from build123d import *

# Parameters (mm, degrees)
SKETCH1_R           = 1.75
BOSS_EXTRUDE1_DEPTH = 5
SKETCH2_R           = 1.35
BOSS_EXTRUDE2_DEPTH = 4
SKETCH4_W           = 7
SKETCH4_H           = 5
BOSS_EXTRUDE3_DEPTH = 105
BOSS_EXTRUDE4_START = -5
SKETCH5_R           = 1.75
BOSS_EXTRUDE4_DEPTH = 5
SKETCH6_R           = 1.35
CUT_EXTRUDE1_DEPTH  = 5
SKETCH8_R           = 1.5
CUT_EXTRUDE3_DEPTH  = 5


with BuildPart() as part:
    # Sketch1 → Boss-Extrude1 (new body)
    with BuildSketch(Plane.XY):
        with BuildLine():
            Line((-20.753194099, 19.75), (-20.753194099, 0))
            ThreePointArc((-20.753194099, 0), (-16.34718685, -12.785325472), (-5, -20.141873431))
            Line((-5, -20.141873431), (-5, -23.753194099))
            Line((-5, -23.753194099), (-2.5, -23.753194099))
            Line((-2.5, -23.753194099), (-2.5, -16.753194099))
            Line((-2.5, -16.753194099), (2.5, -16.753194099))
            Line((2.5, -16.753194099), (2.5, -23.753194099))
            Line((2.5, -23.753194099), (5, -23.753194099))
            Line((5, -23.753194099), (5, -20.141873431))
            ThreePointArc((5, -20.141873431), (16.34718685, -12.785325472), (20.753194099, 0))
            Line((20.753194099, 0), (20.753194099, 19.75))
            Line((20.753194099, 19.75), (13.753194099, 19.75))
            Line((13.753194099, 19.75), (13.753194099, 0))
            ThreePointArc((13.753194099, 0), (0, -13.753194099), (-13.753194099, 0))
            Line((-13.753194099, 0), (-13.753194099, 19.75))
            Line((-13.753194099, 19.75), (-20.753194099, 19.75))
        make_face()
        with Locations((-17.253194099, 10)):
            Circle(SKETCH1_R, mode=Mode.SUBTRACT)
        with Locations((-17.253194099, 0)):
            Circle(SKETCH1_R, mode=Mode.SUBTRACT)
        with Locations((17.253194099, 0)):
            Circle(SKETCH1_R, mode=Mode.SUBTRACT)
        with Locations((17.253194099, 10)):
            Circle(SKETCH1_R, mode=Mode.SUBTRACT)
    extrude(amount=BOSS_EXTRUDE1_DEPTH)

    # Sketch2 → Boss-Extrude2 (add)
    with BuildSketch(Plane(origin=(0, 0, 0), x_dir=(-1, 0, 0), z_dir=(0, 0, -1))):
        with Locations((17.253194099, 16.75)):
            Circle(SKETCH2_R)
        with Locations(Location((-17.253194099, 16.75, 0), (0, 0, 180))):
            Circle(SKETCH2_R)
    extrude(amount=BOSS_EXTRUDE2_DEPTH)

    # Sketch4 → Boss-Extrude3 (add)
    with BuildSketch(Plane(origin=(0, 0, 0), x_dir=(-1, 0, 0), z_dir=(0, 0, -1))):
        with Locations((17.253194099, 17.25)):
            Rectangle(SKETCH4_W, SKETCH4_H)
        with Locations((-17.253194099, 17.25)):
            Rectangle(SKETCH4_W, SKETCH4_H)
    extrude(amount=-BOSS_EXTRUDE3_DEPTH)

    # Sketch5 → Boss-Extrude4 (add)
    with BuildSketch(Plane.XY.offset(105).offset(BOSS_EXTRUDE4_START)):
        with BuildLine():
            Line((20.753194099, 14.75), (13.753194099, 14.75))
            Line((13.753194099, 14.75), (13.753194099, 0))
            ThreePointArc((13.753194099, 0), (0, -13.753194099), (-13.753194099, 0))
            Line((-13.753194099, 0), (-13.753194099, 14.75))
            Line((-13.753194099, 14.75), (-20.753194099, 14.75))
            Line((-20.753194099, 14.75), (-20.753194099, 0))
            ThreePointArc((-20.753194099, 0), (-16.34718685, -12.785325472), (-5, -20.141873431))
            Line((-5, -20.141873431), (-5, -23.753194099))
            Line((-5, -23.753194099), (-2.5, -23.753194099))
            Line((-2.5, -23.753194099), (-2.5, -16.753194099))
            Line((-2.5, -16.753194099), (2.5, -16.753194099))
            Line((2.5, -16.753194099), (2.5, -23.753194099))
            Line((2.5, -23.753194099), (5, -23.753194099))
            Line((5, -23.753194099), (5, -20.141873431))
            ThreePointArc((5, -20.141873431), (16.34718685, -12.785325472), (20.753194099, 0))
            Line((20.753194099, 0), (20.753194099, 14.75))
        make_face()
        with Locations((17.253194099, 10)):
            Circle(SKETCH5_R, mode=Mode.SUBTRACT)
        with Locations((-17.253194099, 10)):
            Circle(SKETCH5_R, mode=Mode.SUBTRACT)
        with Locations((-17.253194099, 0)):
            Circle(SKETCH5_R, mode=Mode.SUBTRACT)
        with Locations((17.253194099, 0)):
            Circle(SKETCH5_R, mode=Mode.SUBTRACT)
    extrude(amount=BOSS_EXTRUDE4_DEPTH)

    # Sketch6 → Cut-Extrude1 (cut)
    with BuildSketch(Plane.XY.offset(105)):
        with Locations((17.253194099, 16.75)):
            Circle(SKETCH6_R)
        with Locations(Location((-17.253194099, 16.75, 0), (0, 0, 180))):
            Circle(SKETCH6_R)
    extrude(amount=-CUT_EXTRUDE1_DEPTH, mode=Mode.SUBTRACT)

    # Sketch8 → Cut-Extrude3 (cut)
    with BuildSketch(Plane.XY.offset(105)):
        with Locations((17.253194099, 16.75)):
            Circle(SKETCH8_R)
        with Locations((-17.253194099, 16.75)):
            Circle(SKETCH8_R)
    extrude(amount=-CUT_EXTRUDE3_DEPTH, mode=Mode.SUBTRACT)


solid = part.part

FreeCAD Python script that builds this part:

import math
import FreeCAD as App
import Part
import Sketcher
from FreeCAD import Vector
Q = App.Units.Quantity

doc = App.newDocument("Part")
params = doc.addObject("Spreadsheet::Sheet", "Params")
for row, (alias, value) in enumerate([
    ("sketch1_diameter", "3.5 mm"),
    ("sketch1_width", "5 mm"),
    ("sketch1_width2", "7 mm"),
    ("sketch1_width3", "2.5 mm"),
    ("sketch1_height", "19.75 mm"),
    ("pad1_length", "5 mm"),
    ("sketch2_diameter", "2.7 mm"),
    ("pad2_length", "4 mm"),
    ("sketch3_width", "7 mm"),
    ("sketch3_height", "5 mm"),
    ("pad3_length", "105 mm"),
    ("sketch4_diameter", "3.5 mm"),
    ("sketch4_width", "7 mm"),
    ("sketch4_width2", "5 mm"),
    ("sketch4_width3", "2.5 mm"),
    ("sketch4_height", "14.75 mm"),
    ("pad4_length", "5 mm"),
    ("sketch5_diameter", "2.7 mm"),
    ("pocket1_length", "5 mm"),
    ("sketch6_diameter", "3 mm"),
    ("pocket2_length", "5 mm"),
], start=1):
    params.set(f"A{row}", alias)
    params.set(f"B{row}", "=" + value)
    params.setAlias(f"B{row}", alias)

body = doc.addObject("PartDesign::Body", "Body")

# Sketch on XY plane
sketch1 = doc.addObject("Sketcher::SketchObject", "Sketch")
body.addObject(sketch1)
sketch1.AttachmentSupport = (doc.XY_Plane, [""])
sketch1.MapMode = "FlatFace"
sketch1.addGeometry([
    Part.LineSegment(Vector(-20.753194, 19.75, 0), Vector(-20.753194, 0, 0)),  # 0
    Part.ArcOfCircle(Part.Circle(Vector(0, 0, 0), Vector(0, 0, 1), 20.753194), math.radians(180), math.radians(256.058755)),  # 1
    Part.LineSegment(Vector(-5, -20.141873, 0), Vector(-5, -23.753194, 0)),  # 2
    Part.LineSegment(Vector(-5, -23.753194, 0), Vector(-2.5, -23.753194, 0)),  # 3
    Part.LineSegment(Vector(-2.5, -23.753194, 0), Vector(-2.5, -16.753194, 0)),  # 4
    Part.LineSegment(Vector(-2.5, -16.753194, 0), Vector(2.5, -16.753194, 0)),  # 5
    Part.LineSegment(Vector(2.5, -16.753194, 0), Vector(2.5, -23.753194, 0)),  # 6
    Part.LineSegment(Vector(2.5, -23.753194, 0), Vector(5, -23.753194, 0)),  # 7
    Part.LineSegment(Vector(5, -23.753194, 0), Vector(5, -20.141873, 0)),  # 8
    Part.ArcOfCircle(Part.Circle(Vector(0, 0, 0), Vector(0, 0, 1), 20.753194), math.radians(-76.058755), math.radians(0)),  # 9
    Part.LineSegment(Vector(20.753194, 0, 0), Vector(20.753194, 19.75, 0)),  # 10
    Part.LineSegment(Vector(20.753194, 19.75, 0), Vector(13.753194, 19.75, 0)),  # 11
    Part.LineSegment(Vector(13.753194, 19.75, 0), Vector(13.753194, 0, 0)),  # 12
    Part.ArcOfCircle(Part.Circle(Vector(0, 0, 0), Vector(0, 0, 1), 13.753194), math.radians(180), math.radians(360)),  # 13
    Part.LineSegment(Vector(-13.753194, 0, 0), Vector(-13.753194, 19.75, 0)),  # 14
    Part.LineSegment(Vector(-13.753194, 19.75, 0), Vector(-20.753194, 19.75, 0)),  # 15
    Part.Circle(Vector(-17.253194, 0, 0), Vector(0, 0, 1), 1.75),  # 16
    Part.Circle(Vector(17.253194, 0, 0), Vector(0, 0, 1), 1.75),  # 17
    Part.Circle(Vector(-17.253194, 10, 0), Vector(0, 0, 1), 1.75),  # 18
    Part.Circle(Vector(17.253194, 10, 0), Vector(0, 0, 1), 1.75),  # 19
], False)
sketch1.addConstraint([
    Sketcher.Constraint("Tangent", 0, 2, 1, 1),
    Sketcher.Constraint("Coincident", 1, 2, 2, 1),
    Sketcher.Constraint("Coincident", 2, 2, 3, 1),
    Sketcher.Constraint("Coincident", 3, 2, 4, 1),
    Sketcher.Constraint("Coincident", 4, 2, 5, 1),
    Sketcher.Constraint("Coincident", 5, 2, 6, 1),
    Sketcher.Constraint("Coincident", 6, 2, 7, 1),
    Sketcher.Constraint("Coincident", 7, 2, 8, 1),
    Sketcher.Constraint("Coincident", 8, 2, 9, 1),
    Sketcher.Constraint("Tangent", 9, 2, 10, 1),
    Sketcher.Constraint("Coincident", 10, 2, 11, 1),
    Sketcher.Constraint("Coincident", 11, 2, 12, 1),
    Sketcher.Constraint("Tangent", 12, 2, 13, 2),
    Sketcher.Constraint("Tangent", 13, 1, 14, 1),
    Sketcher.Constraint("Coincident", 14, 2, 15, 1),
    Sketcher.Constraint("Coincident", 15, 2, 0, 1),
    Sketcher.Constraint("Vertical", 0),
    Sketcher.Constraint("Vertical", 2),
    Sketcher.Constraint("Horizontal", 3),
    Sketcher.Constraint("Vertical", 4),
    Sketcher.Constraint("Horizontal", 5),
    Sketcher.Constraint("Vertical", 6),
    Sketcher.Constraint("Horizontal", 7),
    Sketcher.Constraint("Vertical", 8),
    Sketcher.Constraint("Vertical", 10),
    Sketcher.Constraint("Horizontal", 11),
    Sketcher.Constraint("Vertical", 12),
    Sketcher.Constraint("Vertical", 14),
    Sketcher.Constraint("Horizontal", 15),
    Sketcher.Constraint("Coincident", 1, 3, -1, 1),
    Sketcher.Constraint("Coincident", 9, 3, -1, 1),
    Sketcher.Constraint("Coincident", 13, 3, -1, 1),
    Sketcher.Constraint("Equal", 1, 9),
    Sketcher.Constraint("Equal", 16, 17),
    Sketcher.Constraint("Equal", 17, 18),
    Sketcher.Constraint("Equal", 18, 19),
    Sketcher.Constraint("Symmetric", 16, 3, 17, 3, -1, 1),
    Sketcher.Constraint("Symmetric", 18, 3, 19, 3, -2),
    Sketcher.Constraint("Symmetric", 3, 2, 6, 2, -2),
    Sketcher.Constraint("PointOnObject", 16, 3, -1),
    Sketcher.Constraint("Horizontal", 1, 2, 8, 2),
    Sketcher.Constraint("Horizontal", 11, 2, 14, 2),
    Sketcher.Constraint("Vertical", 16, 3, 18, 3),
    Sketcher.Constraint("Equal", 15, 4),
    Sketcher.Constraint("Diameter", 16, Q("3.5 mm")),
    Sketcher.Constraint("DistanceX", 5, 1, 5, 2, Q("5 mm")),
    Sketcher.Constraint("DistanceX", 11, 2, 11, 1, Q("7 mm")),
    Sketcher.Constraint("DistanceX", 3, 1, 3, 2, Q("2.5 mm")),
    Sketcher.Constraint("DistanceY", -1, 1, 18, 3, Q("10 mm")),
    Sketcher.Constraint("DistanceY", 0, 2, 0, 1, Q("19.75 mm")),
    Sketcher.Constraint("DistanceX", 0, 2, 16, 3, Q("3.5 mm")),
    Sketcher.Constraint("Radius", 1, Q("20.753194 mm")),
    Sketcher.Constraint("DistanceY", 2, 2, 2, 1, Q("3.611321 mm")),
])
sketch1.setExpression("Constraints[44]", "Params.sketch1_diameter")
sketch1.setExpression("Constraints[45]", "Params.sketch1_width")
sketch1.setExpression("Constraints[46]", "Params.sketch1_width2")
sketch1.setExpression("Constraints[47]", "Params.sketch1_width3")
sketch1.setExpression("Constraints[49]", "Params.sketch1_height")
pad1 = doc.addObject("PartDesign::Pad", "Pad")
body.addObject(pad1)
pad1.Profile = sketch1
pad1.setExpression("Length", "Params.pad1_length")

# Sketch on XY plane
sketch2 = doc.addObject("Sketcher::SketchObject", "Sketch001")
body.addObject(sketch2)
sketch2.AttachmentSupport = (doc.XY_Plane, [""])
sketch2.MapMode = "FlatFace"
sketch2.addGeometry([
    Part.Circle(Vector(-17.253194, 16.75, 0), Vector(0, 0, 1), 1.35),
    Part.Circle(Vector(17.253194, 16.75, 0), Vector(0, 0, 1), 1.35),
], False)
sketch2.addConstraint([
    Sketcher.Constraint("Equal", 0, 1),
    Sketcher.Constraint("Symmetric", 0, 3, 1, 3, -2),
    Sketcher.Constraint("Diameter", 0, Q("2.7 mm")),
    Sketcher.Constraint("DistanceY", -1, 1, 0, 3, Q("16.75 mm")),
    Sketcher.Constraint("DistanceX", 0, 3, 1, 3, Q("34.506388 mm")),
])
sketch2.setExpression("Constraints[2]", "Params.sketch2_diameter")
pad2 = doc.addObject("PartDesign::Pad", "Pad001")
body.addObject(pad2)
pad2.Profile = sketch2
pad2.setExpression("Length", "Params.pad2_length")
pad2.Reversed = True

# Sketch on XY plane
sketch3 = doc.addObject("Sketcher::SketchObject", "Sketch002")
body.addObject(sketch3)
sketch3.AttachmentSupport = (doc.XY_Plane, [""])
sketch3.MapMode = "FlatFace"
sketch3.addGeometry([
    Part.LineSegment(Vector(-13.753194, 19.75, 0), Vector(-13.753194, 14.75, 0)),  # 0
    Part.LineSegment(Vector(-13.753194, 14.75, 0), Vector(-20.753194, 14.75, 0)),  # 1
    Part.LineSegment(Vector(-20.753194, 14.75, 0), Vector(-20.753194, 19.75, 0)),  # 2
    Part.LineSegment(Vector(-20.753194, 19.75, 0), Vector(-13.753194, 19.75, 0)),  # 3
    Part.LineSegment(Vector(20.753194, 19.75, 0), Vector(20.753194, 14.75, 0)),  # 4
    Part.LineSegment(Vector(20.753194, 14.75, 0), Vector(13.753194, 14.75, 0)),  # 5
    Part.LineSegment(Vector(13.753194, 14.75, 0), Vector(13.753194, 19.75, 0)),  # 6
    Part.LineSegment(Vector(13.753194, 19.75, 0), Vector(20.753194, 19.75, 0)),  # 7
], False)
sketch3.addConstraint([
    Sketcher.Constraint("Coincident", 0, 2, 1, 1),
    Sketcher.Constraint("Coincident", 1, 2, 2, 1),
    Sketcher.Constraint("Coincident", 2, 2, 3, 1),
    Sketcher.Constraint("Coincident", 3, 2, 0, 1),
    Sketcher.Constraint("Coincident", 4, 2, 5, 1),
    Sketcher.Constraint("Coincident", 5, 2, 6, 1),
    Sketcher.Constraint("Coincident", 6, 2, 7, 1),
    Sketcher.Constraint("Coincident", 7, 2, 4, 1),
    Sketcher.Constraint("Vertical", 0),
    Sketcher.Constraint("Horizontal", 1),
    Sketcher.Constraint("Vertical", 2),
    Sketcher.Constraint("Horizontal", 3),
    Sketcher.Constraint("Vertical", 4),
    Sketcher.Constraint("Horizontal", 5),
    Sketcher.Constraint("Vertical", 6),
    Sketcher.Constraint("Horizontal", 7),
    Sketcher.Constraint("Symmetric", 1, 2, 4, 2, -2),
    Sketcher.Constraint("Symmetric", 3, 2, 6, 2, -2),
    Sketcher.Constraint("DistanceX", 1, 2, 1, 1, Q("7 mm")),
    Sketcher.Constraint("DistanceY", 0, 2, 0, 1, Q("5 mm")),
    Sketcher.Constraint("DistanceY", -1, 1, 0, 2, Q("14.75 mm")),
    Sketcher.Constraint("DistanceX", 0, 2, 4, 2, Q("34.506388 mm")),
])
sketch3.setExpression("Constraints[18]", "Params.sketch3_width")
sketch3.setExpression("Constraints[19]", "Params.sketch3_height")
pad3 = doc.addObject("PartDesign::Pad", "Pad002")
body.addObject(pad3)
pad3.Profile = sketch3
pad3.setExpression("Length", "Params.pad3_length")

# Sketch on XY plane
sketch4 = doc.addObject("Sketcher::SketchObject", "Sketch003")
body.addObject(sketch4)
sketch4.AttachmentSupport = (doc.XY_Plane, [""])
sketch4.MapMode = "FlatFace"
sketch4.AttachmentOffset = App.Placement(Vector(0, 0, 100), App.Rotation())
sketch4.addGeometry([
    Part.LineSegment(Vector(20.753194, 14.75, 0), Vector(13.753194, 14.75, 0)),  # 0
    Part.LineSegment(Vector(13.753194, 14.75, 0), Vector(13.753194, 0, 0)),  # 1
    Part.ArcOfCircle(Part.Circle(Vector(0, 0, 0), Vector(0, 0, 1), 13.753194), math.radians(180), math.radians(360)),  # 2
    Part.LineSegment(Vector(-13.753194, 0, 0), Vector(-13.753194, 14.75, 0)),  # 3
    Part.LineSegment(Vector(-13.753194, 14.75, 0), Vector(-20.753194, 14.75, 0)),  # 4
    Part.LineSegment(Vector(-20.753194, 14.75, 0), Vector(-20.753194, 0, 0)),  # 5
    Part.ArcOfCircle(Part.Circle(Vector(0, 0, 0), Vector(0, 0, 1), 20.753194), math.radians(180), math.radians(256.058755)),  # 6
    Part.LineSegment(Vector(-5, -20.141873, 0), Vector(-5, -23.753194, 0)),  # 7
    Part.LineSegment(Vector(-5, -23.753194, 0), Vector(-2.5, -23.753194, 0)),  # 8
    Part.LineSegment(Vector(-2.5, -23.753194, 0), Vector(-2.5, -16.753194, 0)),  # 9
    Part.LineSegment(Vector(-2.5, -16.753194, 0), Vector(2.5, -16.753194, 0)),  # 10
    Part.LineSegment(Vector(2.5, -16.753194, 0), Vector(2.5, -23.753194, 0)),  # 11
    Part.LineSegment(Vector(2.5, -23.753194, 0), Vector(5, -23.753194, 0)),  # 12
    Part.LineSegment(Vector(5, -23.753194, 0), Vector(5, -20.141873, 0)),  # 13
    Part.ArcOfCircle(Part.Circle(Vector(0, 0, 0), Vector(0, 0, 1), 20.753194), math.radians(-76.058755), math.radians(0)),  # 14
    Part.LineSegment(Vector(20.753194, 0, 0), Vector(20.753194, 14.75, 0)),  # 15
    Part.Circle(Vector(-17.253194, 0, 0), Vector(0, 0, 1), 1.75),  # 16
    Part.Circle(Vector(17.253194, 0, 0), Vector(0, 0, 1), 1.75),  # 17
    Part.Circle(Vector(-17.253194, 10, 0), Vector(0, 0, 1), 1.75),  # 18
    Part.Circle(Vector(17.253194, 10, 0), Vector(0, 0, 1), 1.75),  # 19
], False)
sketch4.addConstraint([
    Sketcher.Constraint("Coincident", 0, 2, 1, 1),
    Sketcher.Constraint("Tangent", 1, 2, 2, 2),
    Sketcher.Constraint("Tangent", 2, 1, 3, 1),
    Sketcher.Constraint("Coincident", 3, 2, 4, 1),
    Sketcher.Constraint("Coincident", 4, 2, 5, 1),
    Sketcher.Constraint("Tangent", 5, 2, 6, 1),
    Sketcher.Constraint("Coincident", 6, 2, 7, 1),
    Sketcher.Constraint("Coincident", 7, 2, 8, 1),
    Sketcher.Constraint("Coincident", 8, 2, 9, 1),
    Sketcher.Constraint("Coincident", 9, 2, 10, 1),
    Sketcher.Constraint("Coincident", 10, 2, 11, 1),
    Sketcher.Constraint("Coincident", 11, 2, 12, 1),
    Sketcher.Constraint("Coincident", 12, 2, 13, 1),
    Sketcher.Constraint("Coincident", 13, 2, 14, 1),
    Sketcher.Constraint("Tangent", 14, 2, 15, 1),
    Sketcher.Constraint("Coincident", 15, 2, 0, 1),
    Sketcher.Constraint("Horizontal", 0),
    Sketcher.Constraint("Vertical", 1),
    Sketcher.Constraint("Vertical", 3),
    Sketcher.Constraint("Horizontal", 4),
    Sketcher.Constraint("Vertical", 5),
    Sketcher.Constraint("Vertical", 7),
    Sketcher.Constraint("Horizontal", 8),
    Sketcher.Constraint("Vertical", 9),
    Sketcher.Constraint("Horizontal", 10),
    Sketcher.Constraint("Vertical", 11),
    Sketcher.Constraint("Horizontal", 12),
    Sketcher.Constraint("Vertical", 13),
    Sketcher.Constraint("Vertical", 15),
    Sketcher.Constraint("Coincident", 2, 3, -1, 1),
    Sketcher.Constraint("Coincident", 6, 3, -1, 1),
    Sketcher.Constraint("Coincident", 14, 3, -1, 1),
    Sketcher.Constraint("Equal", 6, 14),
    Sketcher.Constraint("Equal", 16, 17),
    Sketcher.Constraint("Equal", 17, 18),
    Sketcher.Constraint("Equal", 18, 19),
    Sketcher.Constraint("Symmetric", 16, 3, 17, 3, -1, 1),
    Sketcher.Constraint("Symmetric", 18, 3, 19, 3, -2),
    Sketcher.Constraint("Symmetric", 8, 2, 11, 2, -2),
    Sketcher.Constraint("PointOnObject", 16, 3, -1),
    Sketcher.Constraint("Horizontal", 0, 2, 3, 2),
    Sketcher.Constraint("Horizontal", 6, 2, 13, 2),
    Sketcher.Constraint("Vertical", 16, 3, 18, 3),
    Sketcher.Constraint("Equal", 4, 9),
    Sketcher.Constraint("Diameter", 16, Q("3.5 mm")),
    Sketcher.Constraint("DistanceX", 0, 2, 0, 1, Q("7 mm")),
    Sketcher.Constraint("DistanceX", 10, 1, 10, 2, Q("5 mm")),
    Sketcher.Constraint("DistanceX", 8, 1, 8, 2, Q("2.5 mm")),
    Sketcher.Constraint("DistanceY", -1, 1, 18, 3, Q("10 mm")),
    Sketcher.Constraint("DistanceY", 1, 2, 1, 1, Q("14.75 mm")),
    Sketcher.Constraint("DistanceX", 0, 2, 19, 3, Q("3.5 mm")),
    Sketcher.Constraint("Radius", 2, Q("13.753194 mm")),
    Sketcher.Constraint("DistanceY", 7, 2, 7, 1, Q("3.611321 mm")),
])
sketch4.setExpression("Constraints[44]", "Params.sketch4_diameter")
sketch4.setExpression("Constraints[45]", "Params.sketch4_width")
sketch4.setExpression("Constraints[46]", "Params.sketch4_width2")
sketch4.setExpression("Constraints[47]", "Params.sketch4_width3")
sketch4.setExpression("Constraints[49]", "Params.sketch4_height")
pad4 = doc.addObject("PartDesign::Pad", "Pad003")
body.addObject(pad4)
pad4.Profile = sketch4
pad4.setExpression("Length", "Params.pad4_length")

# Sketch on XY plane
sketch5 = doc.addObject("Sketcher::SketchObject", "Sketch004")
body.addObject(sketch5)
sketch5.AttachmentSupport = (doc.XY_Plane, [""])
sketch5.MapMode = "FlatFace"
sketch5.AttachmentOffset = App.Placement(Vector(0, 0, 105), App.Rotation())
sketch5.addGeometry([
    Part.Circle(Vector(17.253194, 16.75, 0), Vector(0, 0, 1), 1.35),
    Part.Circle(Vector(-17.253194, 16.75, 0), Vector(0, 0, 1), 1.35),
], False)
sketch5.addConstraint([
    Sketcher.Constraint("Equal", 0, 1),
    Sketcher.Constraint("Symmetric", 0, 3, 1, 3, -2),
    Sketcher.Constraint("Diameter", 0, Q("2.7 mm")),
    Sketcher.Constraint("DistanceY", -1, 1, 0, 3, Q("16.75 mm")),
    Sketcher.Constraint("DistanceX", 1, 3, 0, 3, Q("34.506388 mm")),
])
sketch5.setExpression("Constraints[2]", "Params.sketch5_diameter")
pocket1 = doc.addObject("PartDesign::Pocket", "Pocket")
body.addObject(pocket1)
pocket1.Profile = sketch5
pocket1.setExpression("Length", "Params.pocket1_length")

# Sketch on XY plane
sketch6 = doc.addObject("Sketcher::SketchObject", "Sketch005")
body.addObject(sketch6)
sketch6.AttachmentSupport = (doc.XY_Plane, [""])
sketch6.MapMode = "FlatFace"
sketch6.AttachmentOffset = App.Placement(Vector(0, 0, 105), App.Rotation())
sketch6.addGeometry([
    Part.Circle(Vector(17.253194, 16.75, 0), Vector(0, 0, 1), 1.5),
    Part.Circle(Vector(-17.253194, 16.75, 0), Vector(0, 0, 1), 1.5),
], False)
sketch6.addConstraint([
    Sketcher.Constraint("Equal", 0, 1),
    Sketcher.Constraint("Symmetric", 0, 3, 1, 3, -2),
    Sketcher.Constraint("Diameter", 0, Q("3 mm")),
    Sketcher.Constraint("DistanceY", -1, 1, 0, 3, Q("16.75 mm")),
    Sketcher.Constraint("DistanceX", 1, 3, 0, 3, Q("34.506388 mm")),
])
sketch6.setExpression("Constraints[2]", "Params.sketch6_diameter")
pocket2 = doc.addObject("PartDesign::Pocket", "Pocket001")
body.addObject(pocket2)
pocket2.Profile = sketch6
pocket2.setExpression("Length", "Params.pocket2_length")

doc.recompute()
